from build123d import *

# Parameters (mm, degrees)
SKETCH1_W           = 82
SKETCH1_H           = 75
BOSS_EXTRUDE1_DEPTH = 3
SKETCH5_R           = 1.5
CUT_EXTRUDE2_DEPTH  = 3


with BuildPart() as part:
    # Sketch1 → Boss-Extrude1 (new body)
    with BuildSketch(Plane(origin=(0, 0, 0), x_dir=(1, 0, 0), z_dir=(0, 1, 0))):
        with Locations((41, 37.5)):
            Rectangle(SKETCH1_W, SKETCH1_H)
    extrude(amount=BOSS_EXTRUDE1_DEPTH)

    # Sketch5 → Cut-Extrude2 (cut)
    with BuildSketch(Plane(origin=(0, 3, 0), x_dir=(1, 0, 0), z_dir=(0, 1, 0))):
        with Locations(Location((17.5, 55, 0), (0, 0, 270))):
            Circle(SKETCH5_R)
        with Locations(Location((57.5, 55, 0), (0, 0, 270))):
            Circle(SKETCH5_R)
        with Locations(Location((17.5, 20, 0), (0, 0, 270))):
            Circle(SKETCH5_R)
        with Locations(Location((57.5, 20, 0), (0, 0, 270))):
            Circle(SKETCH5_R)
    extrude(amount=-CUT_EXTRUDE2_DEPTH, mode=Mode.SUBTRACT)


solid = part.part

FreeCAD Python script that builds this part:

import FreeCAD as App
import Part
import Sketcher
from FreeCAD import Vector


def add_polygon(sketch, points):
    """Adds a closed chain of lines whose ends are joined by coincident constraints."""
    first, n = sketch.GeometryCount, len(points)
    for a, b in zip(points, points[1:] + points[:1]):
        sketch.addGeometry(Part.LineSegment(App.Vector(*a, 0), App.Vector(*b, 0)), False)
    for i in range(n):
        sketch.addConstraint(Sketcher.Constraint("Coincident", first + i, 2, first + (i + 1) % n, 1))

doc = App.newDocument("Part")
body = doc.addObject("PartDesign::Body", "Body")

# Sketch on XZ plane
sketch1 = body.newObject("Sketcher::SketchObject", "Sketch")
sketch1.AttachmentSupport = (doc.getObject("XZ_Plane"), [""])
sketch1.MapMode = "FlatFace"
add_polygon(sketch1, [(0, -75), (0, 0), (82, 0), (82, -75)])  # lines 0-3
sketch1.addConstraint(Sketcher.Constraint("Vertical", 0))
sketch1.addConstraint(Sketcher.Constraint("Horizontal", 1))
sketch1.addConstraint(Sketcher.Constraint("Vertical", 2))
sketch1.addConstraint(Sketcher.Constraint("Horizontal", 3))
sketch1.addConstraint(Sketcher.Constraint("Coincident", 0, 2, -1, 1))
sketch1.addConstraint(Sketcher.Constraint("DistanceX", 1, 1, 1, 2, 82.0))
sketch1.addConstraint(Sketcher.Constraint("DistanceY", 0, 1, 0, 2, 75.0))
pad1 = body.newObject("PartDesign::Pad", "Pad")
pad1.Profile = sketch1
pad1.Length = 3
pad1.Reversed = True

# Sketch on XZ plane
sketch2 = body.newObject("Sketcher::SketchObject", "Sketch001")
sketch2.AttachmentSupport = (doc.getObject("XZ_Plane"), [""])
sketch2.MapMode = "FlatFace"
sketch2.AttachmentOffset = App.Placement(Vector(0, 0, -3), App.Rotation())
sketch2.addGeometry(Part.Circle(Vector(17.5, -55, 0), Vector(0, 0, 1), 1.5), False)
sketch2.addGeometry(Part.Circle(Vector(57.5, -55, 0), Vector(0, 0, 1), 1.5), False)
sketch2.addGeometry(Part.Circle(Vector(17.5, -20, 0), Vector(0, 0, 1), 1.5), False)
sketch2.addGeometry(Part.Circle(Vector(57.5, -20, 0), Vector(0, 0, 1), 1.5), False)
sketch2.addConstraint(Sketcher.Constraint("Equal", 0, 1))
sketch2.addConstraint(Sketcher.Constraint("Equal", 1, 2))
sketch2.addConstraint(Sketcher.Constraint("Equal", 2, 3))
sketch2.addConstraint(Sketcher.Constraint("Horizontal", 0, 3, 1, 3))
sketch2.addConstraint(Sketcher.Constraint("Horizontal", 2, 3, 3, 3))
sketch2.addConstraint(Sketcher.Constraint("Vertical", 0, 3, 2, 3))
sketch2.addConstraint(Sketcher.Constraint("Vertical", 1, 3, 3, 3))
sketch2.addConstraint(Sketcher.Constraint("Diameter", 0, 3.0))
sketch2.addConstraint(Sketcher.Constraint("DistanceY", 0, 3, -1, 1, 55.0))
sketch2.addConstraint(Sketcher.Constraint("DistanceY", 2, 3, -1, 1, 20.0))
sketch2.addConstraint(Sketcher.Constraint("DistanceX", 0, 3, 1, 3, 40.0))
sketch2.addConstraint(Sketcher.Constraint("DistanceX", -1, 1, 0, 3, 17.5))
pocket1 = body.newObject("PartDesign::Pocket", "Pocket")
pocket1.Profile = sketch2
pocket1.Length = 3
pocket1.Reversed = True

doc.recompute()
